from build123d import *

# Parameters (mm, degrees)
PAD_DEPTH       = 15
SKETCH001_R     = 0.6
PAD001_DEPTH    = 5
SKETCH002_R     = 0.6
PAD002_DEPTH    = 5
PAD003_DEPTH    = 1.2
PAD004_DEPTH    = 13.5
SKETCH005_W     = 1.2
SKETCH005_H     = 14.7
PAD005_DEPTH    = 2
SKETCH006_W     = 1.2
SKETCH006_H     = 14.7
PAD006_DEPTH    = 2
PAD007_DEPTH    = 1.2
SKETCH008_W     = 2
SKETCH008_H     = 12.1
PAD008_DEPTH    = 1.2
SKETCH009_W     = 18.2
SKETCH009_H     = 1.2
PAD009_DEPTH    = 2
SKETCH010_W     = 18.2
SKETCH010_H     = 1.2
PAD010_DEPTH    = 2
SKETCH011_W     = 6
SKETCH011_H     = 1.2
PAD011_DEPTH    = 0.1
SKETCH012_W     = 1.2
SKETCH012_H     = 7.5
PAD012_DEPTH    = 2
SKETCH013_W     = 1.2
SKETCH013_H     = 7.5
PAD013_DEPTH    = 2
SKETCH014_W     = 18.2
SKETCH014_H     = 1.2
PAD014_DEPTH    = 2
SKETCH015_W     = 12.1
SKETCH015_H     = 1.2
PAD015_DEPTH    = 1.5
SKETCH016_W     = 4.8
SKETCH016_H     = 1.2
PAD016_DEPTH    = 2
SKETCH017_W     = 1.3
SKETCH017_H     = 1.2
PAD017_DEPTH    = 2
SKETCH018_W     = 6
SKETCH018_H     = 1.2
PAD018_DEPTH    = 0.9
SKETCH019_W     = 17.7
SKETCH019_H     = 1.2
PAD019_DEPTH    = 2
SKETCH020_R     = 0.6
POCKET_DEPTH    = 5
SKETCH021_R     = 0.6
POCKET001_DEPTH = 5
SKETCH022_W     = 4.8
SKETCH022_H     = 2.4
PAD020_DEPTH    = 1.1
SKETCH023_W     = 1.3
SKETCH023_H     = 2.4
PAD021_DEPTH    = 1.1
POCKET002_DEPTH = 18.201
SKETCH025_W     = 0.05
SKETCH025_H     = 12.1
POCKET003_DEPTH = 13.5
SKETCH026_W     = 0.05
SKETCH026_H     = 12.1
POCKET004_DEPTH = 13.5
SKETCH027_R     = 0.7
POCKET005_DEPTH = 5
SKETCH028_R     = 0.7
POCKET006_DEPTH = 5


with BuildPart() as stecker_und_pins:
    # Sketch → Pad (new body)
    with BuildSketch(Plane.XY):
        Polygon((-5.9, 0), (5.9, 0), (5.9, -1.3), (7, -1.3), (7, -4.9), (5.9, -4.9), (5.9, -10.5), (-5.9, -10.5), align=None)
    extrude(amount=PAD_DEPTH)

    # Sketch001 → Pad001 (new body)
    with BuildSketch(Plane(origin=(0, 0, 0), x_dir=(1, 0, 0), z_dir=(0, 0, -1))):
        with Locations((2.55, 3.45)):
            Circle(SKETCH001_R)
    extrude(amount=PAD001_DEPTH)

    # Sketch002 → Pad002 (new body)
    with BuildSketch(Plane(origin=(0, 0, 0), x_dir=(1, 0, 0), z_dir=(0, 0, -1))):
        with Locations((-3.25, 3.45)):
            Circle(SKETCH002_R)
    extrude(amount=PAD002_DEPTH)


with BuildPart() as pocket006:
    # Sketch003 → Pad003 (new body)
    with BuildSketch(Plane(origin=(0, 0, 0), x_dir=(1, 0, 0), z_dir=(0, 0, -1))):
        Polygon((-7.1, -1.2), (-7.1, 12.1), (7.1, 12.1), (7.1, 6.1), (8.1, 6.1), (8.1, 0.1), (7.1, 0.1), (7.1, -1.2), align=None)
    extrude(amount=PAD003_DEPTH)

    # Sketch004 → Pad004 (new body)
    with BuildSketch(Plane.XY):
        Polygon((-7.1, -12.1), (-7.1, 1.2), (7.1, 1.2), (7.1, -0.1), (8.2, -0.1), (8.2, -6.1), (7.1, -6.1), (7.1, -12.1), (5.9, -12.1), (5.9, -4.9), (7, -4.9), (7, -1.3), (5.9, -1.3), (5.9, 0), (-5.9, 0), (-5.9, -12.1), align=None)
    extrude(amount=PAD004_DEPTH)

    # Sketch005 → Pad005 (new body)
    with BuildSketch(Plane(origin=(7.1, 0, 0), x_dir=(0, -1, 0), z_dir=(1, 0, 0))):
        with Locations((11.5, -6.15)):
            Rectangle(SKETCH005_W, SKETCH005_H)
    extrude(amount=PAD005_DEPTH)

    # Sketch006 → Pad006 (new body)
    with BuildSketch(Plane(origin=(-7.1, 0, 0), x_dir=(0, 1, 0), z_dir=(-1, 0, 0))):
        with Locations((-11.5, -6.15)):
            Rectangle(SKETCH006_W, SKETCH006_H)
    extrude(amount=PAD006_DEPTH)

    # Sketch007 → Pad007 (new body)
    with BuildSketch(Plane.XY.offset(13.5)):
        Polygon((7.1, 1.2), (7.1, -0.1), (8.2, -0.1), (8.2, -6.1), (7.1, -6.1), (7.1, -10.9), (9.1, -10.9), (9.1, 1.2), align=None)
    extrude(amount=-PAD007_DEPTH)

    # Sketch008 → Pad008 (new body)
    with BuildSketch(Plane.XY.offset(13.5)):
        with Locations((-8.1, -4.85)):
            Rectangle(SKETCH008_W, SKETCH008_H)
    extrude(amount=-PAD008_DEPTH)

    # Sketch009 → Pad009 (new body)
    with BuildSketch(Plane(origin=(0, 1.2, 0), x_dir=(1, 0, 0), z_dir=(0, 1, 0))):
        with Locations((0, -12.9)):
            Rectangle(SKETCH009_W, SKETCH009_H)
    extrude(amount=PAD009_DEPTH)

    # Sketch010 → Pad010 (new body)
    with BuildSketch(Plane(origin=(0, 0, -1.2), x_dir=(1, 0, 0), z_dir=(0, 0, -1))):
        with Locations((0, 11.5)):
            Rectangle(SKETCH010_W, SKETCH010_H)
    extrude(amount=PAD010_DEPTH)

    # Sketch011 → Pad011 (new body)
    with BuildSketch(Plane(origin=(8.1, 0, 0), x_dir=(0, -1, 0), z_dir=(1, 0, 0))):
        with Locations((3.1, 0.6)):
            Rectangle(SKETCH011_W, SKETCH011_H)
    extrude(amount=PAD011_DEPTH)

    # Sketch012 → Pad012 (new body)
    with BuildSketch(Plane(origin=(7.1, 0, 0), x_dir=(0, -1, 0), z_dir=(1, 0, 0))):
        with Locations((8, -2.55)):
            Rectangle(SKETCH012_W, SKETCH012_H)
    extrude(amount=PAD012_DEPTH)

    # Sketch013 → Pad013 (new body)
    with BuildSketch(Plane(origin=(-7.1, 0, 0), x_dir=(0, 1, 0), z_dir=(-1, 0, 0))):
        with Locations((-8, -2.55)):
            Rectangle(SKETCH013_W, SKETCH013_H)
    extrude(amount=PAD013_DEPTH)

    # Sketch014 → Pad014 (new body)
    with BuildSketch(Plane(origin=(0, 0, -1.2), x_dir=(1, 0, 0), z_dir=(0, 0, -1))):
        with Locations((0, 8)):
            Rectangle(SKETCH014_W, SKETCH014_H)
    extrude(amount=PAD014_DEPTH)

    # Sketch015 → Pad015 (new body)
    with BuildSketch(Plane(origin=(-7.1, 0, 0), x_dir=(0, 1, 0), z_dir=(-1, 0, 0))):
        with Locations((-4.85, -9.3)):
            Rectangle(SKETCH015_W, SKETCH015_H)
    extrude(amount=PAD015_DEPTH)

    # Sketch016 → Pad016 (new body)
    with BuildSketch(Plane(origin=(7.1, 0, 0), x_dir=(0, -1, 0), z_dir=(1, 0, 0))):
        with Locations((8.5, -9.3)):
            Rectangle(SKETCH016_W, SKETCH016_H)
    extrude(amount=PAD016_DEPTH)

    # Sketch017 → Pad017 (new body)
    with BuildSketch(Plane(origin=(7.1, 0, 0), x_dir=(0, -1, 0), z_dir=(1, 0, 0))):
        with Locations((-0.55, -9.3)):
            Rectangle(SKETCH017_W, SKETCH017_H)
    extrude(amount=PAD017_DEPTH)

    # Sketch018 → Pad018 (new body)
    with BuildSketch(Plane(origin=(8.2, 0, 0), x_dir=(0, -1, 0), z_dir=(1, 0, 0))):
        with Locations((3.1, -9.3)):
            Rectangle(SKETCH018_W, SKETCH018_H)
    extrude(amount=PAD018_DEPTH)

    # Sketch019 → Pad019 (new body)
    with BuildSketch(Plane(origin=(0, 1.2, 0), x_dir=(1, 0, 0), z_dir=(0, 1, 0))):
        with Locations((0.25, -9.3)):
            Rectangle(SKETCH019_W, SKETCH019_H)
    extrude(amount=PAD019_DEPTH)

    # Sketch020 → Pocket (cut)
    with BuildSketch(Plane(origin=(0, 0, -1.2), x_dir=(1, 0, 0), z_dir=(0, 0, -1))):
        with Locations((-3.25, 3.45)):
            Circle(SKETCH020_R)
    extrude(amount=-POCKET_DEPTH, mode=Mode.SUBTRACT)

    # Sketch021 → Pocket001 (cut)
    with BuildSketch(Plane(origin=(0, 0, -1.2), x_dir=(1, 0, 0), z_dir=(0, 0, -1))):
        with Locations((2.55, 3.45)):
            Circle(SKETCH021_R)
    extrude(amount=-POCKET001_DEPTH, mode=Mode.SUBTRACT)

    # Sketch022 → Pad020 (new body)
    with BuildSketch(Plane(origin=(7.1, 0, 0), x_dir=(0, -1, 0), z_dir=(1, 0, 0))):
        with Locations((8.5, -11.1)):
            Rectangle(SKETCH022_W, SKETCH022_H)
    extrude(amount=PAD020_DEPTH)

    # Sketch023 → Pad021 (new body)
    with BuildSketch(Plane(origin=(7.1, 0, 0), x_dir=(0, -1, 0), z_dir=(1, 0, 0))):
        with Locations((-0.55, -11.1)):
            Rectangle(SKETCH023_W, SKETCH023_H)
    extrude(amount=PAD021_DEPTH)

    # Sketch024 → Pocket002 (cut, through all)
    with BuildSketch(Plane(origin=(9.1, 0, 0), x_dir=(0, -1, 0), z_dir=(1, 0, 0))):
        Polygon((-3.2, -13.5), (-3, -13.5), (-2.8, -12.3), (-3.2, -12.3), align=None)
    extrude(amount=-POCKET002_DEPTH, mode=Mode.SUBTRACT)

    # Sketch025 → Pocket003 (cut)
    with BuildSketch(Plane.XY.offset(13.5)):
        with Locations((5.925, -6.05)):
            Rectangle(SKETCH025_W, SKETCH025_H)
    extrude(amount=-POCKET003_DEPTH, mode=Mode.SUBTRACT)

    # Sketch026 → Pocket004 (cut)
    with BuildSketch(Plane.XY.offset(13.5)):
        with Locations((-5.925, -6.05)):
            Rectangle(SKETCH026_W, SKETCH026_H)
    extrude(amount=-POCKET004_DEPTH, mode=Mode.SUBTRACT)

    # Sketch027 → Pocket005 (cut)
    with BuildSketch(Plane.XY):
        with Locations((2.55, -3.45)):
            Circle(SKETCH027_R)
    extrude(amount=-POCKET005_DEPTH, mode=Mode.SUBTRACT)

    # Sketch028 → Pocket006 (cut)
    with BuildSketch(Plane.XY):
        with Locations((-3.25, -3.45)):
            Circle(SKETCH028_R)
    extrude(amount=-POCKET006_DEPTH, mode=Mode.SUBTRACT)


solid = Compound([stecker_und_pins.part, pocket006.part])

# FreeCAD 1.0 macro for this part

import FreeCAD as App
import Part
import Sketcher
Q = App.Units.Quantity

doc = App.newDocument("Part")
body = doc.addObject("PartDesign::Body", "Body")

# Sketch on XY plane
sketch1 = doc.addObject("Sketcher::SketchObject", "Sketch")
body.addObject(sketch1)
sketch1.AttachmentSupport = (doc.XY_Plane, [""])
sketch1.MapMode = "FlatFace"
sketch1.addGeometry([
    Part.LineSegment(App.Vector(5.9, 0, 0), App.Vector(-5.9, 0, 0)),  # 0
    Part.LineSegment(App.Vector(-5.9, 0, 0), App.Vector(-5.9, -10.5, 0)),  # 1
    Part.LineSegment(App.Vector(-5.9, -10.5, 0), App.Vector(5.9, -10.5, 0)),  # 2
    Part.LineSegment(App.Vector(5.9, -10.5, 0), App.Vector(5.9, -4.9, 0)),  # 3
    Part.LineSegment(App.Vector(5.9, -4.9, 0), App.Vector(7, -4.9, 0)),  # 4
    Part.LineSegment(App.Vector(7, -4.9, 0), App.Vector(7, -1.3, 0)),  # 5
    Part.LineSegment(App.Vector(7, -1.3, 0), App.Vector(5.9, -1.3, 0)),  # 6
    Part.LineSegment(App.Vector(5.9, -1.3, 0), App.Vector(5.9, 0, 0)),  # 7
], False)
sketch1.addConstraint([
    Sketcher.Constraint("Coincident", 0, 2, 1, 1),
    Sketcher.Constraint("Coincident", 1, 2, 2, 1),
    Sketcher.Constraint("Coincident", 2, 2, 3, 1),
    Sketcher.Constraint("Coincident", 3, 2, 4, 1),
    Sketcher.Constraint("Coincident", 4, 2, 5, 1),
    Sketcher.Constraint("Coincident", 5, 2, 6, 1),
    Sketcher.Constraint("Coincident", 6, 2, 7, 1),
    Sketcher.Constraint("Coincident", 7, 2, 0, 1),
    Sketcher.Constraint("Horizontal", 0),
    Sketcher.Constraint("Vertical", 1),
    Sketcher.Constraint("Horizontal", 2),
    Sketcher.Constraint("Vertical", 3),
    Sketcher.Constraint("Horizontal", 4),
    Sketcher.Constraint("Vertical", 5),
    Sketcher.Constraint("Horizontal", 6),
    Sketcher.Constraint("Vertical", 7),
    Sketcher.Constraint("Symmetric", 0, 2, 7, 2, -1, 1),
    Sketcher.Constraint("Vertical", 3, 2, 6, 2),
    Sketcher.Constraint("DistanceX", 0, 2, 0, 1, Q("11.8 mm")),
    Sketcher.Constraint("DistanceX", 4, 1, 4, 2, Q("1.1 mm")),
    Sketcher.Constraint("DistanceY", 1, 2, 1, 1, Q("10.5 mm")),
    Sketcher.Constraint("DistanceY", 3, 1, 3, 2, Q("5.6 mm")),
    Sketcher.Constraint("DistanceY", 5, 1, 5, 2, Q("3.6 mm")),
])
pad1 = doc.addObject("PartDesign::Pad", "Pad")
body.addObject(pad1)
pad1.Profile = sketch1
pad1.Length = 15

# Sketch on XY plane
sketch2 = doc.addObject("Sketcher::SketchObject", "Sketch001")
body.addObject(sketch2)
sketch2.AttachmentSupport = (doc.XY_Plane, [""])
sketch2.MapMode = "FlatFace"
sketch2.addGeometry(Part.Circle(App.Vector(2.55, -3.45, 0), App.Vector(0, 0, 1), 0.6), False)
sketch2.addConstraint([
    Sketcher.Constraint("Diameter", 0, Q("1.2 mm")),
    Sketcher.Constraint("DistanceX", -1, 1, 0, 3, Q("2.55 mm")),
    Sketcher.Constraint("DistanceY", 0, 3, -1, 1, Q("3.45 mm")),
])
pad2 = doc.addObject("PartDesign::Pad", "Pad001")
body.addObject(pad2)
pad2.Profile = sketch2
pad2.Length = 5
pad2.Reversed = True

# Sketch on XY plane
sketch3 = doc.addObject("Sketcher::SketchObject", "Sketch002")
body.addObject(sketch3)
sketch3.AttachmentSupport = (doc.XY_Plane, [""])
sketch3.MapMode = "FlatFace"
sketch3.addGeometry(Part.Circle(App.Vector(-3.25, -3.45, 0), App.Vector(0, 0, 1), 0.6), False)
sketch3.addConstraint([
    Sketcher.Constraint("Diameter", 0, Q("1.2 mm")),
    Sketcher.Constraint("DistanceX", 0, 3, -1, 1, Q("3.25 mm")),
    Sketcher.Constraint("DistanceY", 0, 3, -1, 1, Q("3.45 mm")),
])
pad3 = doc.addObject("PartDesign::Pad", "Pad002")
body.addObject(pad3)
pad3.Profile = sketch3
pad3.Length = 5
pad3.Reversed = True
body2 = doc.addObject("PartDesign::Body", "Body001")

# Sketch on XY plane
sketch4 = doc.addObject("Sketcher::SketchObject", "Sketch003")
body2.addObject(sketch4)
sketch4.AttachmentSupport = (doc.getObject("XY_Plane001"), [""])
sketch4.MapMode = "FlatFace"
sketch4.addGeometry([
    Part.LineSegment(App.Vector(-7.1, -12.1, 0), App.Vector(-7.1, 1.2, 0)),  # 0
    Part.LineSegment(App.Vector(-7.1, 1.2, 0), App.Vector(7.1, 1.2, 0)),  # 1
    Part.LineSegment(App.Vector(7.1, 1.2, 0), App.Vector(7.1, -0.1, 0)),  # 2
    Part.LineSegment(App.Vector(7.1, -0.1, 0), App.Vector(8.1, -0.1, 0)),  # 3
    Part.LineSegment(App.Vector(8.1, -0.1, 0), App.Vector(8.1, -6.1, 0)),  # 4
    Part.LineSegment(App.Vector(8.1, -6.1, 0), App.Vector(7.1, -6.1, 0)),  # 5
    Part.LineSegment(App.Vector(7.1, -6.1, 0), App.Vector(7.1, -12.1, 0)),  # 6
    Part.LineSegment(App.Vector(7.1, -12.1, 0), App.Vector(-7.1, -12.1, 0)),  # 7
], False)
sketch4.addConstraint([
    Sketcher.Constraint("Coincident", 0, 2, 1, 1),
    Sketcher.Constraint("Coincident", 1, 2, 2, 1),
    Sketcher.Constraint("Coincident", 2, 2, 3, 1),
    Sketcher.Constraint("Coincident", 3, 2, 4, 1),
    Sketcher.Constraint("Coincident", 4, 2, 5, 1),
    Sketcher.Constraint("Coincident", 5, 2, 6, 1),
    Sketcher.Constraint("Coincident", 6, 2, 7, 1),
    Sketcher.Constraint("Coincident", 7, 2, 0, 1),
    Sketcher.Constraint("Vertical", 0),
    Sketcher.Constraint("Horizontal", 1),
    Sketcher.Constraint("Vertical", 2),
    Sketcher.Constraint("Horizontal", 3),
    Sketcher.Constraint("Vertical", 4),
    Sketcher.Constraint("Horizontal", 5),
    Sketcher.Constraint("Vertical", 6),
    Sketcher.Constraint("Horizontal", 7),
    Sketcher.Constraint("Vertical", 2, 2, 5, 2),
    Sketcher.Constraint("Equal", 4, 6),
    Sketcher.Constraint("DistanceX", 3, 1, 3, 2, Q("1 mm")),
    Sketcher.Constraint("DistanceY", 4, 2, 4, 1, Q("6 mm")),
    Sketcher.Constraint("DistanceX", 1, 1, 1, 2, Q("14.2 mm")),
    Sketcher.Constraint("DistanceY", 0, 1, 0, 2, Q("13.3 mm")),
    Sketcher.Constraint("DistanceX", 0, 2, -1, 1, Q("7.1 mm")),
    Sketcher.Constraint("DistanceY", -1, 1, 0, 2, Q("1.2 mm")),
])
pad4 = doc.addObject("PartDesign::Pad", "Pad003")
body2.addObject(pad4)
pad4.Profile = sketch4
pad4.Length = 1.2
pad4.Reversed = True

# Sketch on XY plane
sketch5 = doc.addObject("Sketcher::SketchObject", "Sketch004")
body2.addObject(sketch5)
sketch5.AttachmentSupport = (doc.getObject("XY_Plane001"), [""])
sketch5.MapMode = "FlatFace"
sketch5.addGeometry([
    Part.LineSegment(App.Vector(-7.1, 1.2, 0), App.Vector(-7.1, -12.1, 0)),  # 0
    Part.LineSegment(App.Vector(-7.1, -12.1, 0), App.Vector(-5.9, -12.1, 0)),  # 1
    Part.LineSegment(App.Vector(-5.9, -12.1, 0), App.Vector(-5.9, 0, 0)),  # 2
    Part.LineSegment(App.Vector(-5.9, 0, 0), App.Vector(5.9, 0, 0)),  # 3
    Part.LineSegment(App.Vector(5.9, 0, 0), App.Vector(5.9, -1.3, 0)),  # 4
    Part.LineSegment(App.Vector(5.9, -1.3, 0), App.Vector(7, -1.3, 0)),  # 5
    Part.LineSegment(App.Vector(7, -1.3, 0), App.Vector(7, -4.9, 0)),  # 6
    Part.LineSegment(App.Vector(7, -4.9, 0), App.Vector(5.9, -4.9, 0)),  # 7
    Part.LineSegment(App.Vector(5.9, -4.9, 0), App.Vector(5.9, -12.1, 0)),  # 8
    Part.LineSegment(App.Vector(5.9, -12.1, 0), App.Vector(7.1, -12.1, 0)),  # 9
    Part.LineSegment(App.Vector(7.1, -12.1, 0), App.Vector(7.1, -6.1, 0)),  # 10
    Part.LineSegment(App.Vector(7.1, -6.1, 0), App.Vector(8.2, -6.1, 0)),  # 11
    Part.LineSegment(App.Vector(8.2, -6.1, 0), App.Vector(8.2, -0.1, 0)),  # 12
    Part.LineSegment(App.Vector(8.2, -0.1, 0), App.Vector(7.1, -0.1, 0)),  # 13
    Part.LineSegment(App.Vector(7.1, -0.1, 0), App.Vector(7.1, 1.2, 0)),  # 14
    Part.LineSegment(App.Vector(7.1, 1.2, 0), App.Vector(-7.1, 1.2, 0)),  # 15
], False)
sketch5.addConstraint([
    Sketcher.Constraint("Coincident", 0, 2, 1, 1),
    Sketcher.Constraint("Coincident", 1, 2, 2, 1),
    Sketcher.Constraint("Coincident", 2, 2, 3, 1),
    Sketcher.Constraint("Coincident", 3, 2, 4, 1),
    Sketcher.Constraint("Coincident", 4, 2, 5, 1),
    Sketcher.Constraint("Coincident", 5, 2, 6, 1),
    Sketcher.Constraint("Coincident", 6, 2, 7, 1),
    Sketcher.Constraint("Coincident", 7, 2, 8, 1),
    Sketcher.Constraint("Coincident", 8, 2, 9, 1),
    Sketcher.Constraint("Coincident", 9, 2, 10, 1),
    Sketcher.Constraint("Coincident", 10, 2, 11, 1),
    Sketcher.Constraint("Coincident", 11, 2, 12, 1),
    Sketcher.Constraint("Coincident", 12, 2, 13, 1),
    Sketcher.Constraint("Coincident", 13, 2, 14, 1),
    Sketcher.Constraint("Coincident", 14, 2, 15, 1),
    Sketcher.Constraint("Coincident", 15, 2, 0, 1),
    Sketcher.Constraint("Vertical", 0),
    Sketcher.Constraint("Horizontal", 1),
    Sketcher.Constraint("Vertical", 2),
    Sketcher.Constraint("Horizontal", 3),
    Sketcher.Constraint("Vertical", 4),
    Sketcher.Constraint("Horizontal", 5),
    Sketcher.Constraint("Vertical", 6),
    Sketcher.Constraint("Horizontal", 7),
    Sketcher.Constraint("Vertical", 8),
    Sketcher.Constraint("Horizontal", 9),
    Sketcher.Constraint("Vertical", 10),
    Sketcher.Constraint("Horizontal", 11),
    Sketcher.Constraint("Vertical", 12),
    Sketcher.Constraint("Horizontal", 13),
    Sketcher.Constraint("Vertical", 14),
    Sketcher.Constraint("Horizontal", 15),
    Sketcher.Constraint("Symmetric", 2, 2, 3, 2, -1, 1),
    Sketcher.Constraint("Symmetric", 1, 2, 8, 2, -2),
    Sketcher.Constraint("Vertical", 10, 2, 13, 2),
    Sketcher.Constraint("Equal", 1, 9),
    Sketcher.Constraint("Equal", 7, 11),
    Sketcher.Constraint("Equal", 10, 12),
    Sketcher.Constraint("Equal", 4, 14),
    Sketcher.Constraint("DistanceY", 10, 1, 10, 2, Q("6 mm")),
    Sketcher.Constraint("DistanceX", 1, 1, 1, 2, Q("1.2 mm")),
    Sketcher.Constraint("DistanceX", 3, 1, 3, 2, Q("11.8 mm")),
    Sketcher.Constraint("DistanceX", 5, 1, 5, 2, Q("1.1 mm")),
    Sketcher.Constraint("DistanceY", 0, 2, 0, 1, Q("13.3 mm")),
    Sketcher.Constraint("DistanceY", 2, 1, 2, 2, Q("12.1 mm")),
    Sketcher.Constraint("DistanceY", 6, 2, 6, 1, Q("3.6 mm")),
])
pad5 = doc.addObject("PartDesign::Pad", "Pad004")
body2.addObject(pad5)
pad5.Profile = sketch5
pad5.Length = 13.5

# Sketch on YZ plane
sketch6 = doc.addObject("Sketcher::SketchObject", "Sketch005")
body2.addObject(sketch6)
sketch6.AttachmentSupport = (doc.getObject("YZ_Plane001"), [""])
sketch6.MapMode = "FlatFace"
sketch6.AttachmentOffset = App.Placement(App.Vector(0, 0, 7.1), App.Rotation())
sketch6.addGeometry([
    Part.LineSegment(App.Vector(-10.9, -1.2, 0), App.Vector(-10.9, 13.5, 0)),
    Part.LineSegment(App.Vector(-10.9, 13.5, 0), App.Vector(-12.1, 13.5, 0)),
    Part.LineSegment(App.Vector(-12.1, 13.5, 0), App.Vector(-12.1, -1.2, 0)),
    Part.LineSegment(App.Vector(-12.1, -1.2, 0), App.Vector(-10.9, -1.2, 0)),
], False)
sketch6.addConstraint([
    Sketcher.Constraint("Coincident", 0, 2, 1, 1),
    Sketcher.Constraint("Coincident", 1, 2, 2, 1),
    Sketcher.Constraint("Coincident", 2, 2, 3, 1),
    Sketcher.Constraint("Coincident", 3, 2, 0, 1),
    Sketcher.Constraint("Vertical", 0),
    Sketcher.Constraint("Horizontal", 1),
    Sketcher.Constraint("Vertical", 2),
    Sketcher.Constraint("Horizontal", 3),
    Sketcher.Constraint("DistanceX", 1, 2, 1, 1, Q("1.2 mm")),
    Sketcher.Constraint("DistanceY", 0, 1, 0, 2, Q("14.7 mm")),
    Sketcher.Constraint("DistanceX", 0, 2, -1, 1, Q("10.9 mm")),
    Sketcher.Constraint("DistanceY", -1, 1, 0, 2, Q("13.5 mm")),
])
pad6 = doc.addObject("PartDesign::Pad", "Pad005")
body2.addObject(pad6)
pad6.Profile = sketch6
pad6.Length = 2

# Sketch on YZ plane
sketch7 = doc.addObject("Sketcher::SketchObject", "Sketch006")
body2.addObject(sketch7)
sketch7.AttachmentSupport = (doc.getObject("YZ_Plane001"), [""])
sketch7.MapMode = "FlatFace"
sketch7.AttachmentOffset = App.Placement(App.Vector(0, 0, -7.1), App.Rotation())
sketch7.addGeometry([
    Part.LineSegment(App.Vector(-12.1, -1.2, 0), App.Vector(-12.1, 13.5, 0)),
    Part.LineSegment(App.Vector(-12.1, 13.5, 0), App.Vector(-10.9, 13.5, 0)),
    Part.LineSegment(App.Vector(-10.9, 13.5, 0), App.Vector(-10.9, -1.2, 0)),
    Part.LineSegment(App.Vector(-10.9, -1.2, 0), App.Vector(-12.1, -1.2, 0)),
], False)
sketch7.addConstraint([
    Sketcher.Constraint("Coincident", 0, 2, 1, 1),
    Sketcher.Constraint("Coincident", 1, 2, 2, 1),
    Sketcher.Constraint("Coincident", 2, 2, 3, 1),
    Sketcher.Constraint("Coincident", 3, 2, 0, 1),
    Sketcher.Constraint("Vertical", 0),
    Sketcher.Constraint("Horizontal", 1),
    Sketcher.Constraint("Vertical", 2),
    Sketcher.Constraint("Horizontal", 3),
    Sketcher.Constraint("DistanceX", 1, 1, 1, 2, Q("1.2 mm")),
    Sketcher.Constraint("DistanceY", 0, 1, 0, 2, Q("14.7 mm")),
    Sketcher.Constraint("DistanceX", 0, 2, -1, 1, Q("12.1 mm")),
    Sketcher.Constraint("DistanceY", -1, 1, 0, 2, Q("13.5 mm")),
])
pad7 = doc.addObject("PartDesign::Pad", "Pad006")
body2.addObject(pad7)
pad7.Profile = sketch7
pad7.Length = 2
pad7.Reversed = True

# Sketch on XY plane
sketch8 = doc.addObject("Sketcher::SketchObject", "Sketch007")
body2.addObject(sketch8)
sketch8.AttachmentSupport = (doc.getObject("XY_Plane001"), [""])
sketch8.MapMode = "FlatFace"
sketch8.AttachmentOffset = App.Placement(App.Vector(0, 0, 13.5), App.Rotation())
sketch8.addGeometry([
    Part.LineSegment(App.Vector(7.1, 1.2, 0), App.Vector(7.1, -0.1, 0)),  # 0
    Part.LineSegment(App.Vector(7.1, -0.1, 0), App.Vector(8.2, -0.1, 0)),  # 1
    Part.LineSegment(App.Vector(8.2, -0.1, 0), App.Vector(8.2, -6.1, 0)),  # 2
    Part.LineSegment(App.Vector(8.2, -6.1, 0), App.Vector(7.1, -6.1, 0)),  # 3
    Part.LineSegment(App.Vector(7.1, -6.1, 0), App.Vector(7.1, -10.9, 0)),  # 4
    Part.LineSegment(App.Vector(7.1, -10.9, 0), App.Vector(9.1, -10.9, 0)),  # 5
    Part.LineSegment(App.Vector(9.1, -10.9, 0), App.Vector(9.1, 1.2, 0)),  # 6
    Part.LineSegment(App.Vector(9.1, 1.2, 0), App.Vector(7.1, 1.2, 0)),  # 7
], False)
sketch8.addConstraint([
    Sketcher.Constraint("Coincident", 0, 2, 1, 1),
    Sketcher.Constraint("Coincident", 1, 2, 2, 1),
    Sketcher.Constraint("Coincident", 2, 2, 3, 1),
    Sketcher.Constraint("Coincident", 3, 2, 4, 1),
    Sketcher.Constraint("Coincident", 4, 2, 5, 1),
    Sketcher.Constraint("Coincident", 5, 2, 6, 1),
    Sketcher.Constraint("Coincident", 6, 2, 7, 1),
    Sketcher.Constraint("Coincident", 7, 2, 0, 1),
    Sketcher.Constraint("Vertical", 0),
    Sketcher.Constraint("Horizontal", 1),
    Sketcher.Constraint("Vertical", 2),
    Sketcher.Constraint("Horizontal", 3),
    Sketcher.Constraint("Vertical", 4),
    Sketcher.Constraint("Horizontal", 5),
    Sketcher.Constraint("Vertical", 6),
    Sketcher.Constraint("Horizontal", 7),
    Sketcher.Constraint("Vertical", 0, 2, 3, 2),
    Sketcher.Constraint("DistanceX", 5, 1, 5, 2, Q("2 mm")),
    Sketcher.Constraint("DistanceY", 2, 2, 2, 1, Q("6 mm")),
    Sketcher.Constraint("DistanceX", 1, 1, 1, 2, Q("1.1 mm")),
    Sketcher.Constraint("DistanceY", 0, 2, 0, 1, Q("1.3 mm")),
    Sketcher.Constraint("DistanceY", 4, 2, 4, 1, Q("4.8 mm")),
    Sketcher.Constraint("DistanceX", -1, 1, 0, 2, Q("7.1 mm")),
    Sketcher.Constraint("DistanceY", 0, 2, -1, 1, Q("0.1 mm")),
])
pad8 = doc.addObject("PartDesign::Pad", "Pad007")
body2.addObject(pad8)
pad8.Profile = sketch8
pad8.Length = 1.2
pad8.Reversed = True

# Sketch on XY plane
sketch9 = doc.addObject("Sketcher::SketchObject", "Sketch008")
body2.addObject(sketch9)
sketch9.AttachmentSupport = (doc.getObject("XY_Plane001"), [""])
sketch9.MapMode = "FlatFace"
sketch9.AttachmentOffset = App.Placement(App.Vector(0, 0, 13.5), App.Rotation())
sketch9.addGeometry([
    Part.LineSegment(App.Vector(-9.1, 1.2, 0), App.Vector(-9.1, -10.9, 0)),
    Part.LineSegment(App.Vector(-9.1, -10.9, 0), App.Vector(-7.1, -10.9, 0)),
    Part.LineSegment(App.Vector(-7.1, -10.9, 0), App.Vector(-7.1, 1.2, 0)),
    Part.LineSegment(App.Vector(-7.1, 1.2, 0), App.Vector(-9.1, 1.2, 0)),
], False)
sketch9.addConstraint([
    Sketcher.Constraint("Coincident", 0, 2, 1, 1),
    Sketcher.Constraint("Coincident", 1, 2, 2, 1),
    Sketcher.Constraint("Coincident", 2, 2, 3, 1),
    Sketcher.Constraint("Coincident", 3, 2, 0, 1),
    Sketcher.Constraint("Vertical", 0),
    Sketcher.Constraint("Horizontal", 1),
    Sketcher.Constraint("Vertical", 2),
    Sketcher.Constraint("Horizontal", 3),
    Sketcher.Constraint("DistanceX", 1, 1, 1, 2, Q("2 mm")),
    Sketcher.Constraint("DistanceY", 0, 2, 0, 1, Q("12.1 mm")),
    Sketcher.Constraint("DistanceX", 0, 2, -1, 1, Q("9.1 mm")),
    Sketcher.Constraint("DistanceY", 0, 2, -1, 1, Q("10.9 mm")),
])
pad9 = doc.addObject("PartDesign::Pad", "Pad008")
body2.addObject(pad9)
pad9.Profile = sketch9
pad9.Length = 1.2
pad9.Reversed = True

# Sketch on XZ plane
sketch10 = doc.addObject("Sketcher::SketchObject", "Sketch009")
body2.addObject(sketch10)
sketch10.AttachmentSupport = (doc.getObject("XZ_Plane001"), [""])
sketch10.MapMode = "FlatFace"
sketch10.AttachmentOffset = App.Placement(App.Vector(0, 0, -1.2), App.Rotation())
sketch10.addGeometry([
    Part.LineSegment(App.Vector(-9.1, 12.3, 0), App.Vector(-9.1, 13.5, 0)),
    Part.LineSegment(App.Vector(-9.1, 13.5, 0), App.Vector(9.1, 13.5, 0)),
    Part.LineSegment(App.Vector(9.1, 13.5, 0), App.Vector(9.1, 12.3, 0)),
    Part.LineSegment(App.Vector(9.1, 12.3, 0), App.Vector(-9.1, 12.3, 0)),
], False)
sketch10.addConstraint([
    Sketcher.Constraint("Coincident", 0, 2, 1, 1),
    Sketcher.Constraint("Coincident", 1, 2, 2, 1),
    Sketcher.Constraint("Coincident", 2, 2, 3, 1),
    Sketcher.Constraint("Coincident", 3, 2, 0, 1),
    Sketcher.Constraint("Vertical", 0),
    Sketcher.Constraint("Horizontal", 1),
    Sketcher.Constraint("Vertical", 2),
    Sketcher.Constraint("Horizontal", 3),
    Sketcher.Constraint("DistanceX", 1, 1, 1, 2, Q("18.2 mm")),
    Sketcher.Constraint("DistanceY", 0, 1, 0, 2, Q("1.2 mm")),
    Sketcher.Constraint("DistanceX", 0, 2, -1, 1, Q("9.1 mm")),
    Sketcher.Constraint("DistanceY", -1, 1, 0, 2, Q("13.5 mm")),
])
pad10 = doc.addObject("PartDesign::Pad", "Pad009")
body2.addObject(pad10)
pad10.Profile = sketch10
pad10.Length = 2
pad10.Reversed = True

# Sketch on XY plane
sketch11 = doc.addObject("Sketcher::SketchObject", "Sketch010")
body2.addObject(sketch11)
sketch11.AttachmentSupport = (doc.getObject("XY_Plane001"), [""])
sketch11.MapMode = "FlatFace"
sketch11.AttachmentOffset = App.Placement(App.Vector(0, 0, -1.2), App.Rotation())
sketch11.addGeometry([
    Part.LineSegment(App.Vector(-9.1, -12.1, 0), App.Vector(-9.1, -10.9, 0)),
    Part.LineSegment(App.Vector(-9.1, -10.9, 0), App.Vector(9.1, -10.9, 0)),
    Part.LineSegment(App.Vector(9.1, -10.9, 0), App.Vector(9.1, -12.1, 0)),
    Part.LineSegment(App.Vector(9.1, -12.1, 0), App.Vector(-9.1, -12.1, 0)),
], False)
sketch11.addConstraint([
    Sketcher.Constraint("Coincident", 0, 2, 1, 1),
    Sketcher.Constraint("Coincident", 1, 2, 2, 1),
    Sketcher.Constraint("Coincident", 2, 2, 3, 1),
    Sketcher.Constraint("Coincident", 3, 2, 0, 1),
    Sketcher.Constraint("Vertical", 0),
    Sketcher.Constraint("Horizontal", 1),
    Sketcher.Constraint("Vertical", 2),
    Sketcher.Constraint("Horizontal", 3),
    Sketcher.Constraint("DistanceX", 1, 1, 1, 2, Q("18.2 mm")),
    Sketcher.Constraint("DistanceY", 0, 1, 0, 2, Q("1.2 mm")),
    Sketcher.Constraint("DistanceX", 0, 2, -1, 1, Q("9.1 mm")),
    Sketcher.Constraint("DistanceY", 0, 2, -1, 1, Q("10.9 mm")),
])
pad11 = doc.addObject("PartDesign::Pad", "Pad010")
body2.addObject(pad11)
pad11.Profile = sketch11
pad11.Length = 2
pad11.Reversed = True

# Sketch on YZ plane
sketch12 = doc.addObject("Sketcher::SketchObject", "Sketch011")
body2.addObject(sketch12)
sketch12.AttachmentSupport = (doc.getObject("YZ_Plane001"), [""])
sketch12.MapMode = "FlatFace"
sketch12.AttachmentOffset = App.Placement(App.Vector(0, 0, 8.1), App.Rotation())
sketch12.addGeometry([
    Part.LineSegment(App.Vector(-0.1, -1.2, 0), App.Vector(-0.1, 0, 0)),
    Part.LineSegment(App.Vector(-0.1, 0, 0), App.Vector(-6.1, 0, 0)),
    Part.LineSegment(App.Vector(-6.1, 0, 0), App.Vector(-6.1, -1.2, 0)),
    Part.LineSegment(App.Vector(-6.1, -1.2, 0), App.Vector(-0.1, -1.2, 0)),
], False)
sketch12.addConstraint([
    Sketcher.Constraint("Coincident", 0, 2, 1, 1),
    Sketcher.Constraint("Coincident", 1, 2, 2, 1),
    Sketcher.Constraint("Coincident", 2, 2, 3, 1),
    Sketcher.Constraint("Coincident", 3, 2, 0, 1),
    Sketcher.Constraint("Vertical", 0),
    Sketcher.Constraint("Horizontal", 1),
    Sketcher.Constraint("Vertical", 2),
    Sketcher.Constraint("Horizontal", 3),
    Sketcher.Constraint("PointOnObject", 0, 2, -1),
    Sketcher.Constraint("DistanceX", 1, 2, 1, 1, Q("6 mm")),
    Sketcher.Constraint("DistanceY", 0, 1, 0, 2, Q("1.2 mm")),
    Sketcher.Constraint("DistanceX", 0, 2, -1, 1, Q("0.1 mm")),
])
pad12 = doc.addObject("PartDesign::Pad", "Pad011")
body2.addObject(pad12)
pad12.Profile = sketch12
pad12.Length = 0.1

# Sketch on YZ plane
sketch13 = doc.addObject("Sketcher::SketchObject", "Sketch012")
body2.addObject(sketch13)
sketch13.AttachmentSupport = (doc.getObject("YZ_Plane001"), [""])
sketch13.MapMode = "FlatFace"
sketch13.AttachmentOffset = App.Placement(App.Vector(0, 0, 7.1), App.Rotation())
sketch13.addGeometry([
    Part.LineSegment(App.Vector(-7.4, -1.2, 0), App.Vector(-7.4, 6.3, 0)),
    Part.LineSegment(App.Vector(-7.4, 6.3, 0), App.Vector(-8.6, 6.3, 0)),
    Part.LineSegment(App.Vector(-8.6, 6.3, 0), App.Vector(-8.6, -1.2, 0)),
    Part.LineSegment(App.Vector(-8.6, -1.2, 0), App.Vector(-7.4, -1.2, 0)),
], False)
sketch13.addConstraint([
    Sketcher.Constraint("Coincident", 0, 2, 1, 1),
    Sketcher.Constraint("Coincident", 1, 2, 2, 1),
    Sketcher.Constraint("Coincident", 2, 2, 3, 1),
    Sketcher.Constraint("Coincident", 3, 2, 0, 1),
    Sketcher.Constraint("Vertical", 0),
    Sketcher.Constraint("Horizontal", 1),
    Sketcher.Constraint("Vertical", 2),
    Sketcher.Constraint("Horizontal", 3),
    Sketcher.Constraint("DistanceX", 1, 2, 1, 1, Q("1.2 mm")),
    Sketcher.Constraint("DistanceY", 0, 1, 0, 2, Q("7.5 mm")),
    Sketcher.Constraint("DistanceX", 0, 2, -1, 1, Q("7.4 mm")),
    Sketcher.Constraint("DistanceY", -1, 1, 0, 2, Q("6.3 mm")),
])
pad13 = doc.addObject("PartDesign::Pad", "Pad012")
body2.addObject(pad13)
pad13.Profile = sketch13
pad13.Length = 2

# Sketch on YZ plane
sketch14 = doc.addObject("Sketcher::SketchObject", "Sketch013")
body2.addObject(sketch14)
sketch14.AttachmentSupport = (doc.getObject("YZ_Plane001"), [""])
sketch14.MapMode = "FlatFace"
sketch14.AttachmentOffset = App.Placement(App.Vector(0, 0, -7.1), App.Rotation())
sketch14.addGeometry([
    Part.LineSegment(App.Vector(-8.6, -1.2, 0), App.Vector(-8.6, 6.3, 0)),
    Part.LineSegment(App.Vector(-8.6, 6.3, 0), App.Vector(-7.4, 6.3, 0)),
    Part.LineSegment(App.Vector(-7.4, 6.3, 0), App.Vector(-7.4, -1.2, 0)),
    Part.LineSegment(App.Vector(-7.4, -1.2, 0), App.Vector(-8.6, -1.2, 0)),
], False)
sketch14.addConstraint([
    Sketcher.Constraint("Coincident", 0, 2, 1, 1),
    Sketcher.Constraint("Coincident", 1, 2, 2, 1),
    Sketcher.Constraint("Coincident", 2, 2, 3, 1),
    Sketcher.Constraint("Coincident", 3, 2, 0, 1),
    Sketcher.Constraint("Vertical", 0),
    Sketcher.Constraint("Horizontal", 1),
    Sketcher.Constraint("Vertical", 2),
    Sketcher.Constraint("Horizontal", 3),
    Sketcher.Constraint("DistanceX", 1, 1, 1, 2, Q("1.2 mm")),
    Sketcher.Constraint("DistanceY", 0, 1, 0, 2, Q("7.5 mm")),
    Sketcher.Constraint("DistanceX", 0, 2, -1, 1, Q("8.6 mm")),
    Sketcher.Constraint("DistanceY", -1, 1, 0, 2, Q("6.3 mm")),
])
pad14 = doc.addObject("PartDesign::Pad", "Pad013")
body2.addObject(pad14)
pad14.Profile = sketch14
pad14.Length = 2
pad14.Reversed = True

# Sketch on XY plane
sketch15 = doc.addObject("Sketcher::SketchObject", "Sketch014")
body2.addObject(sketch15)
sketch15.AttachmentSupport = (doc.getObject("XY_Plane001"), [""])
sketch15.MapMode = "FlatFace"
sketch15.AttachmentOffset = App.Placement(App.Vector(0, 0, -1.2), App.Rotation())
sketch15.addGeometry([
    Part.LineSegment(App.Vector(-9.1, -8.6, 0), App.Vector(-9.1, -7.4, 0)),
    Part.LineSegment(App.Vector(-9.1, -7.4, 0), App.Vector(9.1, -7.4, 0)),
    Part.LineSegment(App.Vector(9.1, -7.4, 0), App.Vector(9.1, -8.6, 0)),
    Part.LineSegment(App.Vector(9.1, -8.6, 0), App.Vector(-9.1, -8.6, 0)),
], False)
sketch15.addConstraint([
    Sketcher.Constraint("Coincident", 0, 2, 1, 1),
    Sketcher.Constraint("Coincident", 1, 2, 2, 1),
    Sketcher.Constraint("Coincident", 2, 2, 3, 1),
    Sketcher.Constraint("Coincident", 3, 2, 0, 1),
    Sketcher.Constraint("Vertical", 0),
    Sketcher.Constraint("Horizontal", 1),
    Sketcher.Constraint("Vertical", 2),
    Sketcher.Constraint("Horizontal", 3),
    Sketcher.Constraint("DistanceX", 1, 1, 1, 2, Q("18.2 mm")),
    Sketcher.Constraint("DistanceY", 0, 1, 0, 2, Q("1.2 mm")),
    Sketcher.Constraint("DistanceX", 0, 2, -1, 1, Q("9.1 mm")),
    Sketcher.Constraint("DistanceY", 0, 2, -1, 1, Q("7.4 mm")),
])
pad15 = doc.addObject("PartDesign::Pad", "Pad014")
body2.addObject(pad15)
pad15.Profile = sketch15
pad15.Length = 2
pad15.Reversed = True

# Sketch on YZ plane
sketch16 = doc.addObject("Sketcher::SketchObject", "Sketch015")
body2.addObject(sketch16)
sketch16.AttachmentSupport = (doc.getObject("YZ_Plane001"), [""])
sketch16.MapMode = "FlatFace"
sketch16.AttachmentOffset = App.Placement(App.Vector(0, 0, -7.1), App.Rotation())
sketch16.addGeometry([
    Part.LineSegment(App.Vector(-10.9, 8.7, 0), App.Vector(-10.9, 9.9, 0)),
    Part.LineSegment(App.Vector(-10.9, 9.9, 0), App.Vector(1.2, 9.9, 0)),
    Part.LineSegment(App.Vector(1.2, 9.9, 0), App.Vector(1.2, 8.7, 0)),
    Part.LineSegment(App.Vector(1.2, 8.7, 0), App.Vector(-10.9, 8.7, 0)),
], False)
sketch16.addConstraint([
    Sketcher.Constraint("Coincident", 0, 2, 1, 1),
    Sketcher.Constraint("Coincident", 1, 2, 2, 1),
    Sketcher.Constraint("Coincident", 2, 2, 3, 1),
    Sketcher.Constraint("Coincident", 3, 2, 0, 1),
    Sketcher.Constraint("Vertical", 0),
    Sketcher.Constraint("Horizontal", 1),
    Sketcher.Constraint("Vertical", 2),
    Sketcher.Constraint("Horizontal", 3),
    Sketcher.Constraint("DistanceX", 1, 1, 1, 2, Q("12.1 mm")),
    Sketcher.Constraint("DistanceY", 0, 1, 0, 2, Q("1.2 mm")),
    Sketcher.Constraint("DistanceX", 0, 2, -1, 1, Q("10.9 mm")),
    Sketcher.Constraint("DistanceY", -1, 1, 0, 2, Q("9.9 mm")),
])
pad16 = doc.addObject("PartDesign::Pad", "Pad015")
body2.addObject(pad16)
pad16.Profile = sketch16
pad16.Length = 1.5
pad16.Reversed = True

# Sketch on YZ plane
sketch17 = doc.addObject("Sketcher::SketchObject", "Sketch016")
body2.addObject(sketch17)
sketch17.AttachmentSupport = (doc.getObject("YZ_Plane001"), [""])
sketch17.MapMode = "FlatFace"
sketch17.AttachmentOffset = App.Placement(App.Vector(0, 0, 7.1), App.Rotation())
sketch17.addGeometry([
    Part.LineSegment(App.Vector(-6.1, 8.7, 0), App.Vector(-6.1, 9.9, 0)),
    Part.LineSegment(App.Vector(-6.1, 9.9, 0), App.Vector(-10.9, 9.9, 0)),
    Part.LineSegment(App.Vector(-10.9, 9.9, 0), App.Vector(-10.9, 8.7, 0)),
    Part.LineSegment(App.Vector(-10.9, 8.7, 0), App.Vector(-6.1, 8.7, 0)),
], False)
sketch17.addConstraint([
    Sketcher.Constraint("Coincident", 0, 2, 1, 1),
    Sketcher.Constraint("Coincident", 1, 2, 2, 1),
    Sketcher.Constraint("Coincident", 2, 2, 3, 1),
    Sketcher.Constraint("Coincident", 3, 2, 0, 1),
    Sketcher.Constraint("Vertical", 0),
    Sketcher.Constraint("Horizontal", 1),
    Sketcher.Constraint("Vertical", 2),
    Sketcher.Constraint("Horizontal", 3),
    Sketcher.Constraint("DistanceX", 1, 2, 1, 1, Q("4.8 mm")),
    Sketcher.Constraint("DistanceY", 0, 1, 0, 2, Q("1.2 mm")),
    Sketcher.Constraint("DistanceX", 0, 2, -1, 1, Q("6.1 mm")),
    Sketcher.Constraint("DistanceY", -1, 1, 0, 2, Q("9.9 mm")),
])
pad17 = doc.addObject("PartDesign::Pad", "Pad016")
body2.addObject(pad17)
pad17.Profile = sketch17
pad17.Length = 2

# Sketch on YZ plane
sketch18 = doc.addObject("Sketcher::SketchObject", "Sketch017")
body2.addObject(sketch18)
sketch18.AttachmentSupport = (doc.getObject("YZ_Plane001"), [""])
sketch18.MapMode = "FlatFace"
sketch18.AttachmentOffset = App.Placement(App.Vector(0, 0, 7.1), App.Rotation())
sketch18.addGeometry([
    Part.LineSegment(App.Vector(1.2, 8.7, 0), App.Vector(1.2, 9.9, 0)),
    Part.LineSegment(App.Vector(1.2, 9.9, 0), App.Vector(-0.1, 9.9, 0)),
    Part.LineSegment(App.Vector(-0.1, 9.9, 0), App.Vector(-0.1, 8.7, 0)),
    Part.LineSegment(App.Vector(-0.1, 8.7, 0), App.Vector(1.2, 8.7, 0)),
], False)
sketch18.addConstraint([
    Sketcher.Constraint("Coincident", 0, 2, 1, 1),
    Sketcher.Constraint("Coincident", 1, 2, 2, 1),
    Sketcher.Constraint("Coincident", 2, 2, 3, 1),
    Sketcher.Constraint("Coincident", 3, 2, 0, 1),
    Sketcher.Constraint("Vertical", 0),
    Sketcher.Constraint("Horizontal", 1),
    Sketcher.Constraint("Vertical", 2),
    Sketcher.Constraint("Horizontal", 3),
    Sketcher.Constraint("DistanceX", 1, 2, 1, 1, Q("1.3 mm")),
    Sketcher.Constraint("DistanceY", 0, 1, 0, 2, Q("1.2 mm")),
    Sketcher.Constraint("DistanceX", -1, 1, 0, 2, Q("1.2 mm")),
    Sketcher.Constraint("DistanceY", -1, 1, 0, 2, Q("9.9 mm")),
])
pad18 = doc.addObject("PartDesign::Pad", "Pad017")
body2.addObject(pad18)
pad18.Profile = sketch18
pad18.Length = 2

# Sketch on YZ plane
sketch19 = doc.addObject("Sketcher::SketchObject", "Sketch018")
body2.addObject(sketch19)
sketch19.AttachmentSupport = (doc.getObject("YZ_Plane001"), [""])
sketch19.MapMode = "FlatFace"
sketch19.AttachmentOffset = App.Placement(App.Vector(0, 0, 8.2), App.Rotation())
sketch19.addGeometry([
    Part.LineSegment(App.Vector(-0.1, 8.7, 0), App.Vector(-0.1, 9.9, 0)),
    Part.LineSegment(App.Vector(-0.1, 9.9, 0), App.Vector(-6.1, 9.9, 0)),
    Part.LineSegment(App.Vector(-6.1, 9.9, 0), App.Vector(-6.1, 8.7, 0)),
    Part.LineSegment(App.Vector(-6.1, 8.7, 0), App.Vector(-0.1, 8.7, 0)),
], False)
sketch19.addConstraint([
    Sketcher.Constraint("Coincident", 0, 2, 1, 1),
    Sketcher.Constraint("Coincident", 1, 2, 2, 1),
    Sketcher.Constraint("Coincident", 2, 2, 3, 1),
    Sketcher.Constraint("Coincident", 3, 2, 0, 1),
    Sketcher.Constraint("Vertical", 0),
    Sketcher.Constraint("Horizontal", 1),
    Sketcher.Constraint("Vertical", 2),
    Sketcher.Constraint("Horizontal", 3),
    Sketcher.Constraint("DistanceX", 1, 2, 1, 1, Q("6 mm")),
    Sketcher.Constraint("DistanceY", 0, 1, 0, 2, Q("1.2 mm")),
    Sketcher.Constraint("DistanceX", 0, 2, -1, 1, Q("0.1 mm")),
    Sketcher.Constraint("DistanceY", -1, 1, 0, 2, Q("9.9 mm")),
])
pad19 = doc.addObject("PartDesign::Pad", "Pad018")
body2.addObject(pad19)
pad19.Profile = sketch19
pad19.Length = 0.9

# Sketch on XZ plane
sketch20 = doc.addObject("Sketcher::SketchObject", "Sketch019")
body2.addObject(sketch20)
sketch20.AttachmentSupport = (doc.getObject("XZ_Plane001"), [""])
sketch20.MapMode = "FlatFace"
sketch20.AttachmentOffset = App.Placement(App.Vector(0, 0, -1.2), App.Rotation())
sketch20.addGeometry([
    Part.LineSegment(App.Vector(-8.6, 8.7, 0), App.Vector(-8.6, 9.9, 0)),
    Part.LineSegment(App.Vector(-8.6, 9.9, 0), App.Vector(9.1, 9.9, 0)),
    Part.LineSegment(App.Vector(9.1, 9.9, 0), App.Vector(9.1, 8.7, 0)),
    Part.LineSegment(App.Vector(9.1, 8.7, 0), App.Vector(-8.6, 8.7, 0)),
], False)
sketch20.addConstraint([
    Sketcher.Constraint("Coincident", 0, 2, 1, 1),
    Sketcher.Constraint("Coincident", 1, 2, 2, 1),
    Sketcher.Constraint("Coincident", 2, 2, 3, 1),
    Sketcher.Constraint("Coincident", 3, 2, 0, 1),
    Sketcher.Constraint("Vertical", 0),
    Sketcher.Constraint("Horizontal", 1),
    Sketcher.Constraint("Vertical", 2),
    Sketcher.Constraint("Horizontal", 3),
    Sketcher.Constraint("DistanceX", 1, 1, 1, 2, Q("17.7 mm")),
    Sketcher.Constraint("DistanceY", 0, 1, 0, 2, Q("1.2 mm")),
    Sketcher.Constraint("DistanceX", 0, 2, -1, 1, Q("8.6 mm")),
    Sketcher.Constraint("DistanceY", -1, 1, 0, 2, Q("9.9 mm")),
])
pad20 = doc.addObject("PartDesign::Pad", "Pad019")
body2.addObject(pad20)
pad20.Profile = sketch20
pad20.Length = 2
pad20.Reversed = True

# Sketch on XY plane
sketch21 = doc.addObject("Sketcher::SketchObject", "Sketch020")
body2.addObject(sketch21)
sketch21.AttachmentSupport = (doc.getObject("XY_Plane001"), [""])
sketch21.MapMode = "FlatFace"
sketch21.AttachmentOffset = App.Placement(App.Vector(0, 0, -1.2), App.Rotation())
sketch21.addGeometry(Part.Circle(App.Vector(-3.25, -3.45, 0), App.Vector(0, 0, 1), 0.6), False)
sketch21.addConstraint([
    Sketcher.Constraint("Diameter", 0, Q("1.2 mm")),
    Sketcher.Constraint("DistanceX", 0, 3, -1, 1, Q("3.25 mm")),
    Sketcher.Constraint("DistanceY", 0, 3, -1, 1, Q("3.45 mm")),
])
pocket1 = doc.addObject("PartDesign::Pocket", "Pocket")
body2.addObject(pocket1)
pocket1.Profile = sketch21
pocket1.Length = 5
pocket1.Reversed = True

# Sketch on XY plane
sketch22 = doc.addObject("Sketcher::SketchObject", "Sketch021")
body2.addObject(sketch22)
sketch22.AttachmentSupport = (doc.getObject("XY_Plane001"), [""])
sketch22.MapMode = "FlatFace"
sketch22.AttachmentOffset = App.Placement(App.Vector(0, 0, -1.2), App.Rotation())
sketch22.addGeometry(Part.Circle(App.Vector(2.55, -3.45, 0), App.Vector(0, 0, 1), 0.6), False)
sketch22.addConstraint([
    Sketcher.Constraint("Diameter", 0, Q("1.2 mm")),
    Sketcher.Constraint("DistanceX", -1, 1, 0, 3, Q("2.55 mm")),
    Sketcher.Constraint("DistanceY", 0, 3, -1, 1, Q("3.45 mm")),
])
pocket2 = doc.addObject("PartDesign::Pocket", "Pocket001")
body2.addObject(pocket2)
pocket2.Profile = sketch22
pocket2.Length = 5
pocket2.Reversed = True

# Sketch on YZ plane
sketch23 = doc.addObject("Sketcher::SketchObject", "Sketch022")
body2.addObject(sketch23)
sketch23.AttachmentSupport = (doc.getObject("YZ_Plane001"), [""])
sketch23.MapMode = "FlatFace"
sketch23.AttachmentOffset = App.Placement(App.Vector(0, 0, 7.1), App.Rotation())
sketch23.addGeometry([
    Part.LineSegment(App.Vector(-6.1, 9.9, 0), App.Vector(-6.1, 12.3, 0)),
    Part.LineSegment(App.Vector(-6.1, 12.3, 0), App.Vector(-10.9, 12.3, 0)),
    Part.LineSegment(App.Vector(-10.9, 12.3, 0), App.Vector(-10.9, 9.9, 0)),
    Part.LineSegment(App.Vector(-10.9, 9.9, 0), App.Vector(-6.1, 9.9, 0)),
], False)
sketch23.addConstraint([
    Sketcher.Constraint("Coincident", 0, 2, 1, 1),
    Sketcher.Constraint("Coincident", 1, 2, 2, 1),
    Sketcher.Constraint("Coincident", 2, 2, 3, 1),
    Sketcher.Constraint("Coincident", 3, 2, 0, 1),
    Sketcher.Constraint("Vertical", 0),
    Sketcher.Constraint("Horizontal", 1),
    Sketcher.Constraint("Vertical", 2),
    Sketcher.Constraint("Horizontal", 3),
    Sketcher.Constraint("DistanceX", 1, 2, 1, 1, Q("4.8 mm")),
    Sketcher.Constraint("DistanceY", 0, 1, 0, 2, Q("2.4 mm")),
    Sketcher.Constraint("DistanceX", 0, 2, -1, 1, Q("6.1 mm")),
    Sketcher.Constraint("DistanceY", -1, 1, 0, 2, Q("12.3 mm")),
])
pad21 = doc.addObject("PartDesign::Pad", "Pad020")
body2.addObject(pad21)
pad21.Profile = sketch23
pad21.Length = 1.1

# Sketch on YZ plane
sketch24 = doc.addObject("Sketcher::SketchObject", "Sketch023")
body2.addObject(sketch24)
sketch24.AttachmentSupport = (doc.getObject("YZ_Plane001"), [""])
sketch24.MapMode = "FlatFace"
sketch24.AttachmentOffset = App.Placement(App.Vector(0, 0, 7.1), App.Rotation())
sketch24.addGeometry([
    Part.LineSegment(App.Vector(1.2, 9.9, 0), App.Vector(1.2, 12.3, 0)),
    Part.LineSegment(App.Vector(1.2, 12.3, 0), App.Vector(-0.1, 12.3, 0)),
    Part.LineSegment(App.Vector(-0.1, 12.3, 0), App.Vector(-0.1, 9.9, 0)),
    Part.LineSegment(App.Vector(-0.1, 9.9, 0), App.Vector(1.2, 9.9, 0)),
], False)
sketch24.addConstraint([
    Sketcher.Constraint("Coincident", 0, 2, 1, 1),
    Sketcher.Constraint("Coincident", 1, 2, 2, 1),
    Sketcher.Constraint("Coincident", 2, 2, 3, 1),
    Sketcher.Constraint("Coincident", 3, 2, 0, 1),
    Sketcher.Constraint("Vertical", 0),
    Sketcher.Constraint("Horizontal", 1),
    Sketcher.Constraint("Vertical", 2),
    Sketcher.Constraint("Horizontal", 3),
    Sketcher.Constraint("DistanceX", 1, 2, 1, 1, Q("1.3 mm")),
    Sketcher.Constraint("DistanceY", 0, 1, 0, 2, Q("2.4 mm")),
    Sketcher.Constraint("DistanceX", -1, 1, 0, 2, Q("1.2 mm")),
    Sketcher.Constraint("DistanceY", -1, 1, 0, 2, Q("12.3 mm")),
])
pad22 = doc.addObject("PartDesign::Pad", "Pad021")
body2.addObject(pad22)
pad22.Profile = sketch24
pad22.Length = 1.1

# Sketch on YZ plane
sketch25 = doc.addObject("Sketcher::SketchObject", "Sketch024")
body2.addObject(sketch25)
sketch25.AttachmentSupport = (doc.getObject("YZ_Plane001"), [""])
sketch25.MapMode = "FlatFace"
sketch25.AttachmentOffset = App.Placement(App.Vector(0, 0, 9.1), App.Rotation())
sketch25.addGeometry([
    Part.LineSegment(App.Vector(3.2, 13.5, 0), App.Vector(3, 13.5, 0)),
    Part.LineSegment(App.Vector(3, 13.5, 0), App.Vector(2.8, 12.3, 0)),
    Part.LineSegment(App.Vector(2.8, 12.3, 0), App.Vector(3.2, 12.3, 0)),
    Part.LineSegment(App.Vector(3.2, 12.3, 0), App.Vector(3.2, 13.5, 0)),
], False)
sketch25.addConstraint([
    Sketcher.Constraint("Coincident", 0, 2, 1, 1),
    Sketcher.Constraint("Coincident", 1, 2, 2, 1),
    Sketcher.Constraint("Coincident", 2, 2, 3, 1),
    Sketcher.Constraint("Coincident", 3, 2, 0, 1),
    Sketcher.Constraint("Horizontal", 0),
    Sketcher.Constraint("Horizontal", 2),
    Sketcher.Constraint("Vertical", 3),
    Sketcher.Constraint("DistanceX", 0, 2, 0, 1, Q("0.2 mm")),
    Sketcher.Constraint("DistanceX", 2, 1, 2, 2, Q("0.4 mm")),
    Sketcher.Constraint("DistanceY", 3, 1, 3, 2, Q("1.2 mm")),
    Sketcher.Constraint("DistanceX", -1, 1, 0, 2, Q("3 mm")),
    Sketcher.Constraint("DistanceY", -1, 1, 0, 2, Q("13.5 mm")),
])
pocket3 = doc.addObject("PartDesign::Pocket", "Pocket002")
body2.addObject(pocket3)
pocket3.Profile = sketch25
pocket3.Type = "ThroughAll"

# Sketch on XY plane
sketch26 = doc.addObject("Sketcher::SketchObject", "Sketch025")
body2.addObject(sketch26)
sketch26.AttachmentSupport = (doc.getObject("XY_Plane001"), [""])
sketch26.MapMode = "FlatFace"
sketch26.AttachmentOffset = App.Placement(App.Vector(0, 0, 13.5), App.Rotation())
sketch26.addGeometry([
    Part.LineSegment(App.Vector(5.9, 0, 0), App.Vector(5.9, -12.1, 0)),
    Part.LineSegment(App.Vector(5.9, -12.1, 0), App.Vector(5.95, -12.1, 0)),
    Part.LineSegment(App.Vector(5.95, -12.1, 0), App.Vector(5.95, 0, 0)),
    Part.LineSegment(App.Vector(5.95, 0, 0), App.Vector(5.9, 0, 0)),
], False)
sketch26.addConstraint([
    Sketcher.Constraint("Coincident", 0, 2, 1, 1),
    Sketcher.Constraint("Coincident", 1, 2, 2, 1),
    Sketcher.Constraint("Coincident", 2, 2, 3, 1),
    Sketcher.Constraint("Coincident", 3, 2, 0, 1),
    Sketcher.Constraint("Vertical", 0),
    Sketcher.Constraint("Horizontal", 1),
    Sketcher.Constraint("Vertical", 2),
    Sketcher.Constraint("Horizontal", 3),
    Sketcher.Constraint("PointOnObject", 2, 2, -1),
    Sketcher.Constraint("DistanceY", 0, 2, 0, 1, Q("12.1 mm")),
    Sketcher.Constraint("DistanceX", 1, 1, 1, 2, Q("0.05 mm")),
    Sketcher.Constraint("DistanceX", -1, 1, 0, 2, Q("5.9 mm")),
])
pocket4 = doc.addObject("PartDesign::Pocket", "Pocket003")
body2.addObject(pocket4)
pocket4.Profile = sketch26
pocket4.Length = 13.5

# Sketch on XY plane
sketch27 = doc.addObject("Sketcher::SketchObject", "Sketch026")
body2.addObject(sketch27)
sketch27.AttachmentSupport = (doc.getObject("XY_Plane001"), [""])
sketch27.MapMode = "FlatFace"
sketch27.AttachmentOffset = App.Placement(App.Vector(0, 0, 13.5), App.Rotation())
sketch27.addGeometry([
    Part.LineSegment(App.Vector(-5.95, 0, 0), App.Vector(-5.95, -12.1, 0)),
    Part.LineSegment(App.Vector(-5.95, -12.1, 0), App.Vector(-5.9, -12.1, 0)),
    Part.LineSegment(App.Vector(-5.9, -12.1, 0), App.Vector(-5.9, 0, 0)),
    Part.LineSegment(App.Vector(-5.9, 0, 0), App.Vector(-5.95, 0, 0)),
], False)
sketch27.addConstraint([
    Sketcher.Constraint("Coincident", 0, 2, 1, 1),
    Sketcher.Constraint("Coincident", 1, 2, 2, 1),
    Sketcher.Constraint("Coincident", 2, 2, 3, 1),
    Sketcher.Constraint("Coincident", 3, 2, 0, 1),
    Sketcher.Constraint("Vertical", 0),
    Sketcher.Constraint("Horizontal", 1),
    Sketcher.Constraint("Vertical", 2),
    Sketcher.Constraint("Horizontal", 3),
    Sketcher.Constraint("PointOnObject", 2, 2, -1),
    Sketcher.Constraint("DistanceY", 0, 2, 0, 1, Q("12.1 mm")),
    Sketcher.Constraint("DistanceX", 1, 1, 1, 2, Q("0.05 mm")),
    Sketcher.Constraint("DistanceX", 1, 2, -1, 1, Q("5.9 mm")),
])
pocket5 = doc.addObject("PartDesign::Pocket", "Pocket004")
body2.addObject(pocket5)
pocket5.Profile = sketch27
pocket5.Length = 13.5

# Sketch on XY plane
sketch28 = doc.addObject("Sketcher::SketchObject", "Sketch027")
body2.addObject(sketch28)
sketch28.AttachmentSupport = (doc.getObject("XY_Plane001"), [""])
sketch28.MapMode = "FlatFace"
sketch28.addGeometry(Part.Circle(App.Vector(2.55, -3.45, 0), App.Vector(0, 0, 1), 0.7), False)
sketch28.addConstraint([
    Sketcher.Constraint("Diameter", 0, Q("1.4 mm")),
    Sketcher.Constraint("DistanceX", -1, 1, 0, 3, Q("2.55 mm")),
    Sketcher.Constraint("DistanceY", 0, 3, -1, 1, Q("3.45 mm")),
])
pocket6 = doc.addObject("PartDesign::Pocket", "Pocket005")
body2.addObject(pocket6)
pocket6.Profile = sketch28
pocket6.Length = 5

# Sketch on XY plane
sketch29 = doc.addObject("Sketcher::SketchObject", "Sketch028")
body2.addObject(sketch29)
sketch29.AttachmentSupport = (doc.getObject("XY_Plane001"), [""])
sketch29.MapMode = "FlatFace"
sketch29.addGeometry(Part.Circle(App.Vector(-3.25, -3.45, 0), App.Vector(0, 0, 1), 0.7), False)
sketch29.addConstraint([
    Sketcher.Constraint("Diameter", 0, Q("1.4 mm")),
    Sketcher.Constraint("DistanceX", 0, 3, -1, 1, Q("3.25 mm")),
    Sketcher.Constraint("DistanceY", 0, 3, -1, 1, Q("3.45 mm")),
])
pocket7 = doc.addObject("PartDesign::Pocket", "Pocket006")
body2.addObject(pocket7)
pocket7.Profile = sketch29
pocket7.Length = 5

doc.recompute()
